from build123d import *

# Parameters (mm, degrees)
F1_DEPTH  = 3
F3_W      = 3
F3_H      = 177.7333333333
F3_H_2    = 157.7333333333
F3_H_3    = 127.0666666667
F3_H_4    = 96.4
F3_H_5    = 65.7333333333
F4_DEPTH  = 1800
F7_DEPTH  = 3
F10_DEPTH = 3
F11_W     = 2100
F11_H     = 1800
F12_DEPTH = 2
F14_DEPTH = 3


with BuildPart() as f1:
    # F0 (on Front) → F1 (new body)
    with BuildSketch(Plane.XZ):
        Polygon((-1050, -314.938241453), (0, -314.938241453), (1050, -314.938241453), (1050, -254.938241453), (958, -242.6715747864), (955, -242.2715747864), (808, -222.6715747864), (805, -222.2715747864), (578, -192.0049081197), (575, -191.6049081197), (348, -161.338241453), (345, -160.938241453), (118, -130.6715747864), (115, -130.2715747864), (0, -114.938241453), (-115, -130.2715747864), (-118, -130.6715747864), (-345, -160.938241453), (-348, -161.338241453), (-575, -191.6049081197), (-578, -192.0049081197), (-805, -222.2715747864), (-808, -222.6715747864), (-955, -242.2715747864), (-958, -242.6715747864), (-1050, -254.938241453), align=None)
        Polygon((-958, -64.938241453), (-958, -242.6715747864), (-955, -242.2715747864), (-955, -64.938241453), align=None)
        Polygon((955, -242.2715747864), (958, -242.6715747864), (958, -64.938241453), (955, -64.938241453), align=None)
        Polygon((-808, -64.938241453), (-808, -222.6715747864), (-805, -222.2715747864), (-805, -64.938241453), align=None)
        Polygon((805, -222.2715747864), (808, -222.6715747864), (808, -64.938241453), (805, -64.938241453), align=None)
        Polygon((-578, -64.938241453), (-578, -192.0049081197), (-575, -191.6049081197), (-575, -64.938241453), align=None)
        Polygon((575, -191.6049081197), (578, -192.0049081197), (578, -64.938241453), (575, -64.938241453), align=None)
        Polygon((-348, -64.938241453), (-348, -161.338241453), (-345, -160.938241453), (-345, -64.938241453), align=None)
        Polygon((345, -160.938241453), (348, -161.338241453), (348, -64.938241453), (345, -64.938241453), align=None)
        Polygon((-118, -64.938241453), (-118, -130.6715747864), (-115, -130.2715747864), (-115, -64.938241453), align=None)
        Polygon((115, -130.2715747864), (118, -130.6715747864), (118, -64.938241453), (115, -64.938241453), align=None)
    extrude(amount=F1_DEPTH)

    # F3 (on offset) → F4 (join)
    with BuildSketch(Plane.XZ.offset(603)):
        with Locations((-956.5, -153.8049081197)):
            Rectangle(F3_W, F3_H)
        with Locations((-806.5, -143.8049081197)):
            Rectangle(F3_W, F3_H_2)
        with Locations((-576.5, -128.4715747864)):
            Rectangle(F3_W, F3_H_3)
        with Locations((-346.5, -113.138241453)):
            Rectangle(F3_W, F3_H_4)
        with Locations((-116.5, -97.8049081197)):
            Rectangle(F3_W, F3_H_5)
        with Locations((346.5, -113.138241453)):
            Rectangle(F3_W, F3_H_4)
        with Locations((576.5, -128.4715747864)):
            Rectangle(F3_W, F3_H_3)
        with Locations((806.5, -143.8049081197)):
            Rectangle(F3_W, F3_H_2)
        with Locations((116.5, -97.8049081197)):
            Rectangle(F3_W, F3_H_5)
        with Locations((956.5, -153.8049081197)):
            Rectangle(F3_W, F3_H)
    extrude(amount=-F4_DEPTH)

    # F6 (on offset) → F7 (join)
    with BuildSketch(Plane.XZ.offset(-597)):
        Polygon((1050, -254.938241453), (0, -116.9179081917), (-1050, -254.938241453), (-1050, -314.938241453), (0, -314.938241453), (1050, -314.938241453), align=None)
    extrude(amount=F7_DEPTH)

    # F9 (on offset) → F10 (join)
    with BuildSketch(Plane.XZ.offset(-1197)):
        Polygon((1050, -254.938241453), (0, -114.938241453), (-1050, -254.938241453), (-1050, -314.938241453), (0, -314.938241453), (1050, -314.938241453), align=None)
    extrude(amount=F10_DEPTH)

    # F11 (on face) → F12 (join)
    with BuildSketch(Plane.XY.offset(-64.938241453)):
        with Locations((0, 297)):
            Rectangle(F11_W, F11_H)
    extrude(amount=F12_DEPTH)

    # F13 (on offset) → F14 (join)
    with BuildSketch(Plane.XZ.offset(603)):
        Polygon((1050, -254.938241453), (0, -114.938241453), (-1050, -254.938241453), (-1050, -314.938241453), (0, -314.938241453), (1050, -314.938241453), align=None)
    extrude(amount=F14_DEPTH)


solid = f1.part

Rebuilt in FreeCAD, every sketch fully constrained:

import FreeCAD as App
import Part
import Sketcher
from FreeCAD import Vector

doc = App.newDocument("Part")
params = doc.addObject("Spreadsheet::Sheet", "Params")
for row, (alias, value) in enumerate([
    ("sketch1_width", "2100 mm"),
    ("sketch1_width2", "3 mm"),
    ("sketch1_height", "60 mm"),
    ("sketch1_height2", "96 mm"),
    ("sketch1_height3", "96.4 mm"),
    ("pad1_length", "3 mm"),
    ("sketch2_width", "3 mm"),
    ("sketch2_height", "96.4 mm"),
    ("pad2_length", "1800 mm"),
    ("sketch3_width", "2100 mm"),
    ("sketch3_height", "60 mm"),
    ("pad3_length", "3 mm"),
    ("sketch4_width", "2100 mm"),
    ("sketch4_height", "60 mm"),
    ("pad4_length", "3 mm"),
    ("sketch5_width", "2100 mm"),
    ("sketch5_height", "1800 mm"),
    ("pad5_length", "2 mm"),
    ("sketch6_width", "2100 mm"),
    ("sketch6_height", "60 mm"),
    ("pad6_length", "3 mm"),
], start=1):
    params.set(f"A{row}", alias)
    params.set(f"B{row}", "=" + value)
    params.setAlias(f"B{row}", alias)

body = doc.addObject("PartDesign::Body", "Body")

# Sketch on XZ plane
sketch1 = body.newObject("Sketcher::SketchObject", "Sketch")
sketch1.AttachmentSupport = (doc.getObject("XZ_Plane"), [""])
sketch1.MapMode = "FlatFace"
sketch1.addGeometry(Part.LineSegment(Vector(-1050, -314.9, 0), Vector(1050, -314.9, 0)), False)
sketch1.addGeometry(Part.LineSegment(Vector(1050, -314.9, 0), Vector(1050, -254.9, 0)), False)
sketch1.addGeometry(Part.LineSegment(Vector(1050, -254.9, 0), Vector(958, -242.7, 0)), False)
sketch1.addGeometry(Part.LineSegment(Vector(958, -242.7, 0), Vector(958, -64.9, 0)), False)
sketch1.addGeometry(Part.LineSegment(Vector(958, -64.9, 0), Vector(955, -64.9, 0)), False)
sketch1.addGeometry(Part.LineSegment(Vector(955, -64.9, 0), Vector(955, -242.3, 0)), False)
sketch1.addGeometry(Part.LineSegment(Vector(955, -242.3, 0), Vector(808, -222.7, 0)), False)
sketch1.addGeometry(Part.LineSegment(Vector(808, -222.7, 0), Vector(808, -64.9, 0)), False)
sketch1.addGeometry(Part.LineSegment(Vector(808, -64.9, 0), Vector(805, -64.9, 0)), False)
sketch1.addGeometry(Part.LineSegment(Vector(805, -64.9, 0), Vector(805, -222.3, 0)), False)
sketch1.addGeometry(Part.LineSegment(Vector(805, -222.3, 0), Vector(578, -192, 0)), False)
sketch1.addGeometry(Part.LineSegment(Vector(578, -192, 0), Vector(578, -64.9, 0)), False)
sketch1.addGeometry(Part.LineSegment(Vector(578, -64.9, 0), Vector(575, -64.9, 0)), False)
sketch1.addGeometry(Part.LineSegment(Vector(575, -64.9, 0), Vector(575, -191.6, 0)), False)
sketch1.addGeometry(Part.LineSegment(Vector(575, -191.6, 0), Vector(348, -161.3, 0)), False)
sketch1.addGeometry(Part.LineSegment(Vector(348, -161.3, 0), Vector(348, -64.9, 0)), False)
sketch1.addGeometry(Part.LineSegment(Vector(348, -64.9, 0), Vector(345, -64.9, 0)), False)
sketch1.addGeometry(Part.LineSegment(Vector(345, -64.9, 0), Vector(345, -160.9, 0)), False)
sketch1.addGeometry(Part.LineSegment(Vector(345, -160.9, 0), Vector(118, -130.7, 0)), False)
sketch1.addGeometry(Part.LineSegment(Vector(118, -130.7, 0), Vector(118, -64.9, 0)), False)
sketch1.addGeometry(Part.LineSegment(Vector(118, -64.9, 0), Vector(115, -64.9, 0)), False)
sketch1.addGeometry(Part.LineSegment(Vector(115, -64.9, 0), Vector(115, -130.3, 0)), False)
sketch1.addGeometry(Part.LineSegment(Vector(115, -130.3, 0), Vector(0, -114.9, 0)), False)
sketch1.addGeometry(Part.LineSegment(Vector(0, -114.9, 0), Vector(-115, -130.3, 0)), False)
sketch1.addGeometry(Part.LineSegment(Vector(-115, -130.3, 0), Vector(-115, -64.9, 0)), False)
sketch1.addGeometry(Part.LineSegment(Vector(-115, -64.9, 0), Vector(-118, -64.9, 0)), False)
sketch1.addGeometry(Part.LineSegment(Vector(-118, -64.9, 0), Vector(-118, -130.7, 0)), False)
sketch1.addGeometry(Part.LineSegment(Vector(-118, -130.7, 0), Vector(-345, -160.9, 0)), False)
sketch1.addGeometry(Part.LineSegment(Vector(-345, -160.9, 0), Vector(-345, -64.9, 0)), False)
sketch1.addGeometry(Part.LineSegment(Vector(-345, -64.9, 0), Vector(-348, -64.9, 0)), False)
sketch1.addGeometry(Part.LineSegment(Vector(-348, -64.9, 0), Vector(-348, -161.3, 0)), False)
sketch1.addGeometry(Part.LineSegment(Vector(-348, -161.3, 0), Vector(-575, -191.6, 0)), False)
sketch1.addGeometry(Part.LineSegment(Vector(-575, -191.6, 0), Vector(-575, -64.9, 0)), False)
sketch1.addGeometry(Part.LineSegment(Vector(-575, -64.9, 0), Vector(-578, -64.9, 0)), False)
sketch1.addGeometry(Part.LineSegment(Vector(-578, -64.9, 0), Vector(-578, -192, 0)), False)
sketch1.addGeometry(Part.LineSegment(Vector(-578, -192, 0), Vector(-805, -222.3, 0)), False)
sketch1.addGeometry(Part.LineSegment(Vector(-805, -222.3, 0), Vector(-805, -64.9, 0)), False)
sketch1.addGeometry(Part.LineSegment(Vector(-805, -64.9, 0), Vector(-808, -64.9, 0)), False)
sketch1.addGeometry(Part.LineSegment(Vector(-808, -64.9, 0), Vector(-808, -222.7, 0)), False)
sketch1.addGeometry(Part.LineSegment(Vector(-808, -222.7, 0), Vector(-955, -242.3, 0)), False)
sketch1.addGeometry(Part.LineSegment(Vector(-955, -242.3, 0), Vector(-955, -64.9, 0)), False)
sketch1.addGeometry(Part.LineSegment(Vector(-955, -64.9, 0), Vector(-958, -64.9, 0)), False)
sketch1.addGeometry(Part.LineSegment(Vector(-958, -64.9, 0), Vector(-958, -242.7, 0)), False)
sketch1.addGeometry(Part.LineSegment(Vector(-958, -242.7, 0), Vector(-1050, -254.9, 0)), False)
sketch1.addGeometry(Part.LineSegment(Vector(-1050, -254.9, 0), Vector(-1050, -314.9, 0)), False)
sketch1.addConstraint(Sketcher.Constraint("Coincident", 0, 2, 1, 1))
sketch1.addConstraint(Sketcher.Constraint("Coincident", 1, 2, 2, 1))
sketch1.addConstraint(Sketcher.Constraint("Coincident", 2, 2, 3, 1))
sketch1.addConstraint(Sketcher.Constraint("Coincident", 3, 2, 4, 1))
sketch1.addConstraint(Sketcher.Constraint("Coincident", 4, 2, 5, 1))
sketch1.addConstraint(Sketcher.Constraint("Coincident", 5, 2, 6, 1))
sketch1.addConstraint(Sketcher.Constraint("Coincident", 6, 2, 7, 1))
sketch1.addConstraint(Sketcher.Constraint("Coincident", 7, 2, 8, 1))
sketch1.addConstraint(Sketcher.Constraint("Coincident", 8, 2, 9, 1))
sketch1.addConstraint(Sketcher.Constraint("Coincident", 9, 2, 10, 1))
sketch1.addConstraint(Sketcher.Constraint("Coincident", 10, 2, 11, 1))
sketch1.addConstraint(Sketcher.Constraint("Coincident", 11, 2, 12, 1))
sketch1.addConstraint(Sketcher.Constraint("Coincident", 12, 2, 13, 1))
sketch1.addConstraint(Sketcher.Constraint("Coincident", 13, 2, 14, 1))
sketch1.addConstraint(Sketcher.Constraint("Coincident", 14, 2, 15, 1))
sketch1.addConstraint(Sketcher.Constraint("Coincident", 15, 2, 16, 1))
sketch1.addConstraint(Sketcher.Constraint("Coincident", 16, 2, 17, 1))
sketch1.addConstraint(Sketcher.Constraint("Coincident", 17, 2, 18, 1))
sketch1.addConstraint(Sketcher.Constraint("Coincident", 18, 2, 19, 1))
sketch1.addConstraint(Sketcher.Constraint("Coincident", 19, 2, 20, 1))
sketch1.addConstraint(Sketcher.Constraint("Coincident", 20, 2, 21, 1))
sketch1.addConstraint(Sketcher.Constraint("Coincident", 21, 2, 22, 1))
sketch1.addConstraint(Sketcher.Constraint("Coincident", 22, 2, 23, 1))
sketch1.addConstraint(Sketcher.Constraint("Coincident", 23, 2, 24, 1))
sketch1.addConstraint(Sketcher.Constraint("Coincident", 24, 2, 25, 1))
sketch1.addConstraint(Sketcher.Constraint("Coincident", 25, 2, 26, 1))
sketch1.addConstraint(Sketcher.Constraint("Coincident", 26, 2, 27, 1))
sketch1.addConstraint(Sketcher.Constraint("Coincident", 27, 2, 28, 1))
sketch1.addConstraint(Sketcher.Constraint("Coincident", 28, 2, 29, 1))
sketch1.addConstraint(Sketcher.Constraint("Coincident", 29, 2, 30, 1))
sketch1.addConstraint(Sketcher.Constraint("Coincident", 30, 2, 31, 1))
sketch1.addConstraint(Sketcher.Constraint("Coincident", 31, 2, 32, 1))
sketch1.addConstraint(Sketcher.Constraint("Coincident", 32, 2, 33, 1))
sketch1.addConstraint(Sketcher.Constraint("Coincident", 33, 2, 34, 1))
sketch1.addConstraint(Sketcher.Constraint("Coincident", 34, 2, 35, 1))
sketch1.addConstraint(Sketcher.Constraint("Coincident", 35, 2, 36, 1))
sketch1.addConstraint(Sketcher.Constraint("Coincident", 36, 2, 37, 1))
sketch1.addConstraint(Sketcher.Constraint("Coincident", 37, 2, 38, 1))
sketch1.addConstraint(Sketcher.Constraint("Coincident", 38, 2, 39, 1))
sketch1.addConstraint(Sketcher.Constraint("Coincident", 39, 2, 40, 1))
sketch1.addConstraint(Sketcher.Constraint("Coincident", 40, 2, 41, 1))
sketch1.addConstraint(Sketcher.Constraint("Coincident", 41, 2, 42, 1))
sketch1.addConstraint(Sketcher.Constraint("Coincident", 42, 2, 43, 1))
sketch1.addConstraint(Sketcher.Constraint("Coincident", 43, 2, 44, 1))
sketch1.addConstraint(Sketcher.Constraint("Coincident", 44, 2, 0, 1))
sketch1.addConstraint(Sketcher.Constraint("Horizontal", 0))
sketch1.addConstraint(Sketcher.Constraint("Vertical", 1))
sketch1.addConstraint(Sketcher.Constraint("Vertical", 3))
sketch1.addConstraint(Sketcher.Constraint("Horizontal", 4))
sketch1.addConstraint(Sketcher.Constraint("Vertical", 5))
sketch1.addConstraint(Sketcher.Constraint("Vertical", 7))
sketch1.addConstraint(Sketcher.Constraint("Horizontal", 8))
sketch1.addConstraint(Sketcher.Constraint("Vertical", 9))
sketch1.addConstraint(Sketcher.Constraint("Vertical", 11))
sketch1.addConstraint(Sketcher.Constraint("Horizontal", 12))
sketch1.addConstraint(Sketcher.Constraint("Vertical", 13))
sketch1.addConstraint(Sketcher.Constraint("Vertical", 15))
sketch1.addConstraint(Sketcher.Constraint("Horizontal", 16))
sketch1.addConstraint(Sketcher.Constraint("Vertical", 17))
sketch1.addConstraint(Sketcher.Constraint("Vertical", 19))
sketch1.addConstraint(Sketcher.Constraint("Horizontal", 20))
sketch1.addConstraint(Sketcher.Constraint("Vertical", 21))
sketch1.addConstraint(Sketcher.Constraint("Vertical", 24))
sketch1.addConstraint(Sketcher.Constraint("Horizontal", 25))
sketch1.addConstraint(Sketcher.Constraint("Vertical", 26))
sketch1.addConstraint(Sketcher.Constraint("Vertical", 28))
sketch1.addConstraint(Sketcher.Constraint("Horizontal", 29))
sketch1.addConstraint(Sketcher.Constraint("Vertical", 30))
sketch1.addConstraint(Sketcher.Constraint("Vertical", 32))
sketch1.addConstraint(Sketcher.Constraint("Horizontal", 33))
sketch1.addConstraint(Sketcher.Constraint("Vertical", 34))
sketch1.addConstraint(Sketcher.Constraint("Vertical", 36))
sketch1.addConstraint(Sketcher.Constraint("Horizontal", 37))
sketch1.addConstraint(Sketcher.Constraint("Vertical", 38))
sketch1.addConstraint(Sketcher.Constraint("Vertical", 40))
sketch1.addConstraint(Sketcher.Constraint("Horizontal", 41))
sketch1.addConstraint(Sketcher.Constraint("Vertical", 42))
sketch1.addConstraint(Sketcher.Constraint("Vertical", 44))
sketch1.addConstraint(Sketcher.Constraint("Symmetric", 21, 2, 23, 2, -2))
sketch1.addConstraint(Sketcher.Constraint("Symmetric", 19, 2, 25, 2, -2))
sketch1.addConstraint(Sketcher.Constraint("Symmetric", 17, 2, 27, 2, -2))
sketch1.addConstraint(Sketcher.Constraint("Symmetric", 15, 2, 29, 2, -2))
sketch1.addConstraint(Sketcher.Constraint("Symmetric", 13, 2, 31, 2, -2))
sketch1.addConstraint(Sketcher.Constraint("Symmetric", 11, 2, 33, 2, -2))
sketch1.addConstraint(Sketcher.Constraint("Symmetric", 9, 2, 35, 2, -2))
sketch1.addConstraint(Sketcher.Constraint("Symmetric", 7, 2, 37, 2, -2))
sketch1.addConstraint(Sketcher.Constraint("Symmetric", 5, 2, 39, 2, -2))
sketch1.addConstraint(Sketcher.Constraint("Symmetric", 3, 2, 41, 2, -2))
sketch1.addConstraint(Sketcher.Constraint("Symmetric", 1, 2, 43, 2, -2))
sketch1.addConstraint(Sketcher.Constraint("PointOnObject", 22, 2, -2))
sketch1.addConstraint(Sketcher.Constraint("Parallel", 2, 6))
sketch1.addConstraint(Sketcher.Constraint("Parallel", 6, 10))
sketch1.addConstraint(Sketcher.Constraint("Parallel", 10, 14))
sketch1.addConstraint(Sketcher.Constraint("Parallel", 14, 18))
sketch1.addConstraint(Sketcher.Constraint("Parallel", 18, 22))
sketch1.addConstraint(Sketcher.Constraint("Parallel", 23, 27))
sketch1.addConstraint(Sketcher.Constraint("Parallel", 27, 31))
sketch1.addConstraint(Sketcher.Constraint("Parallel", 31, 35))
sketch1.addConstraint(Sketcher.Constraint("Parallel", 35, 39))
sketch1.addConstraint(Sketcher.Constraint("Parallel", 39, 43))
sketch1.addConstraint(Sketcher.Constraint("Horizontal", 4, 2, 7, 2))
sketch1.addConstraint(Sketcher.Constraint("Horizontal", 8, 2, 11, 2))
sketch1.addConstraint(Sketcher.Constraint("Horizontal", 12, 2, 15, 2))
sketch1.addConstraint(Sketcher.Constraint("Horizontal", 16, 2, 19, 2))
sketch1.addConstraint(Sketcher.Constraint("Equal", 4, 8))
sketch1.addConstraint(Sketcher.Constraint("Equal", 8, 12))
sketch1.addConstraint(Sketcher.Constraint("Equal", 12, 16))
sketch1.addConstraint(Sketcher.Constraint("Equal", 16, 20))
sketch1.addConstraint(Sketcher.Constraint("Equal", 10, 14))
sketch1.addConstraint(Sketcher.Constraint("Equal", 14, 18))
sketch1.addConstraint(Sketcher.Constraint("DistanceX", 0, 1, 0, 2, 2100.0))
sketch1.addConstraint(Sketcher.Constraint("DistanceX", 4, 2, 4, 1, 3.0))
sketch1.addConstraint(Sketcher.Constraint("DistanceY", 1, 1, 1, 2, 60.0))
sketch1.addConstraint(Sketcher.Constraint("DistanceY", 17, 2, 17, 1, 96.0))
sketch1.addConstraint(Sketcher.Constraint("DistanceY", 15, 1, 15, 2, 96.4))
sketch1.addConstraint(Sketcher.Constraint("DistanceX", -1, 1, 2, 2, 958.0))
sketch1.addConstraint(Sketcher.Constraint("DistanceX", -1, 1, 6, 2, 808.0))
sketch1.addConstraint(Sketcher.Constraint("DistanceX", -1, 1, 10, 2, 578.0))
sketch1.addConstraint(Sketcher.Constraint("DistanceY", 1, 2, 3, 2, 190.0))
sketch1.addConstraint(Sketcher.Constraint("DistanceY", 2, 2, 6, 2, 20.0))
sketch1.addConstraint(Sketcher.Constraint("DistanceY", 5, 2, 9, 2, 20.0))
sketch1.addConstraint(Sketcher.Constraint("DistanceY", 22, 2, 20, 2, 50.0))
sketch1.addConstraint(Sketcher.Constraint("DistanceY", 2, 2, 5, 2, 0.4))
sketch1.addConstraint(Sketcher.Constraint("DistanceY", 0, 2, -1, 1, 314.938241))
sketch1.setExpression("Constraints[110]", "Params.sketch1_width")
sketch1.setExpression("Constraints[111]", "Params.sketch1_width2")
sketch1.setExpression("Constraints[112]", "Params.sketch1_height")
sketch1.setExpression("Constraints[113]", "Params.sketch1_height2")
sketch1.setExpression("Constraints[114]", "Params.sketch1_height3")
pad1 = body.newObject("PartDesign::Pad", "Pad")
pad1.Profile = sketch1
pad1.setExpression("Length", "Params.pad1_length")

# Sketch on XZ plane
sketch2 = body.newObject("Sketcher::SketchObject", "Sketch001")
sketch2.AttachmentSupport = (doc.getObject("XZ_Plane"), [""])
sketch2.MapMode = "FlatFace"
sketch2.AttachmentOffset = App.Placement(Vector(0, 0, 603), App.Rotation())
sketch2.addGeometry(Part.LineSegment(Vector(-958, -64.9, 0), Vector(-958, -242.7, 0)), False)
sketch2.addGeometry(Part.LineSegment(Vector(-958, -242.7, 0), Vector(-955, -242.7, 0)), False)
sketch2.addGeometry(Part.LineSegment(Vector(-955, -242.7, 0), Vector(-955, -64.9, 0)), False)
sketch2.addGeometry(Part.LineSegment(Vector(-955, -64.9, 0), Vector(-958, -64.9, 0)), False)
sketch2.addGeometry(Part.LineSegment(Vector(-808, -64.9, 0), Vector(-808, -222.7, 0)), False)
sketch2.addGeometry(Part.LineSegment(Vector(-808, -222.7, 0), Vector(-805, -222.7, 0)), False)
sketch2.addGeometry(Part.LineSegment(Vector(-805, -222.7, 0), Vector(-805, -64.9, 0)), False)
sketch2.addGeometry(Part.LineSegment(Vector(-805, -64.9, 0), Vector(-808, -64.9, 0)), False)
sketch2.addGeometry(Part.LineSegment(Vector(-578, -64.9, 0), Vector(-578, -192, 0)), False)
sketch2.addGeometry(Part.LineSegment(Vector(-578, -192, 0), Vector(-575, -192, 0)), False)
sketch2.addGeometry(Part.LineSegment(Vector(-575, -192, 0), Vector(-575, -64.9, 0)), False)
sketch2.addGeometry(Part.LineSegment(Vector(-575, -64.9, 0), Vector(-578, -64.9, 0)), False)
sketch2.addGeometry(Part.LineSegment(Vector(-348, -64.9, 0), Vector(-348, -161.3, 0)), False)
sketch2.addGeometry(Part.LineSegment(Vector(-348, -161.3, 0), Vector(-345, -161.3, 0)), False)
sketch2.addGeometry(Part.LineSegment(Vector(-345, -161.3, 0), Vector(-345, -64.9, 0)), False)
sketch2.addGeometry(Part.LineSegment(Vector(-345, -64.9, 0), Vector(-348, -64.9, 0)), False)
sketch2.addGeometry(Part.LineSegment(Vector(-118, -64.9, 0), Vector(-118, -130.7, 0)), False)
sketch2.addGeometry(Part.LineSegment(Vector(-118, -130.7, 0), Vector(-115, -130.7, 0)), False)
sketch2.addGeometry(Part.LineSegment(Vector(-115, -130.7, 0), Vector(-115, -64.9, 0)), False)
sketch2.addGeometry(Part.LineSegment(Vector(-115, -64.9, 0), Vector(-118, -64.9, 0)), False)
sketch2.addGeometry(Part.LineSegment(Vector(345, -64.9, 0), Vector(345, -161.3, 0)), False)
sketch2.addGeometry(Part.LineSegment(Vector(345, -161.3, 0), Vector(348, -161.3, 0)), False)
sketch2.addGeometry(Part.LineSegment(Vector(348, -161.3, 0), Vector(348, -64.9, 0)), False)
sketch2.addGeometry(Part.LineSegment(Vector(348, -64.9, 0), Vector(345, -64.9, 0)), False)
sketch2.addGeometry(Part.LineSegment(Vector(575, -64.9, 0), Vector(575, -192, 0)), False)
sketch2.addGeometry(Part.LineSegment(Vector(575, -192, 0), Vector(578, -192, 0)), False)
sketch2.addGeometry(Part.LineSegment(Vector(578, -192, 0), Vector(578, -64.9, 0)), False)
sketch2.addGeometry(Part.LineSegment(Vector(578, -64.9, 0), Vector(575, -64.9, 0)), False)
sketch2.addGeometry(Part.LineSegment(Vector(805, -64.9, 0), Vector(805, -222.7, 0)), False)
sketch2.addGeometry(Part.LineSegment(Vector(805, -222.7, 0), Vector(808, -222.7, 0)), False)
sketch2.addGeometry(Part.LineSegment(Vector(808, -222.7, 0), Vector(808, -64.9, 0)), False)
sketch2.addGeometry(Part.LineSegment(Vector(808, -64.9, 0), Vector(805, -64.9, 0)), False)
sketch2.addGeometry(Part.LineSegment(Vector(115, -64.9, 0), Vector(115, -130.7, 0)), False)
sketch2.addGeometry(Part.LineSegment(Vector(115, -130.7, 0), Vector(118, -130.7, 0)), False)
sketch2.addGeometry(Part.LineSegment(Vector(118, -130.7, 0), Vector(118, -64.9, 0)), False)
sketch2.addGeometry(Part.LineSegment(Vector(118, -64.9, 0), Vector(115, -64.9, 0)), False)
sketch2.addGeometry(Part.LineSegment(Vector(955, -64.9, 0), Vector(955, -242.7, 0)), False)
sketch2.addGeometry(Part.LineSegment(Vector(955, -242.7, 0), Vector(958, -242.7, 0)), False)
sketch2.addGeometry(Part.LineSegment(Vector(958, -242.7, 0), Vector(958, -64.9, 0)), False)
sketch2.addGeometry(Part.LineSegment(Vector(958, -64.9, 0), Vector(955, -64.9, 0)), False)
sketch2.addConstraint(Sketcher.Constraint("Coincident", 0, 2, 1, 1))
sketch2.addConstraint(Sketcher.Constraint("Coincident", 1, 2, 2, 1))
sketch2.addConstraint(Sketcher.Constraint("Coincident", 2, 2, 3, 1))
sketch2.addConstraint(Sketcher.Constraint("Coincident", 3, 2, 0, 1))
sketch2.addConstraint(Sketcher.Constraint("Coincident", 4, 2, 5, 1))
sketch2.addConstraint(Sketcher.Constraint("Coincident", 5, 2, 6, 1))
sketch2.addConstraint(Sketcher.Constraint("Coincident", 6, 2, 7, 1))
sketch2.addConstraint(Sketcher.Constraint("Coincident", 7, 2, 4, 1))
sketch2.addConstraint(Sketcher.Constraint("Coincident", 8, 2, 9, 1))
sketch2.addConstraint(Sketcher.Constraint("Coincident", 9, 2, 10, 1))
sketch2.addConstraint(Sketcher.Constraint("Coincident", 10, 2, 11, 1))
sketch2.addConstraint(Sketcher.Constraint("Coincident", 11, 2, 8, 1))
sketch2.addConstraint(Sketcher.Constraint("Coincident", 12, 2, 13, 1))
sketch2.addConstraint(Sketcher.Constraint("Coincident", 13, 2, 14, 1))
sketch2.addConstraint(Sketcher.Constraint("Coincident", 14, 2, 15, 1))
sketch2.addConstraint(Sketcher.Constraint("Coincident", 15, 2, 12, 1))
sketch2.addConstraint(Sketcher.Constraint("Coincident", 16, 2, 17, 1))
sketch2.addConstraint(Sketcher.Constraint("Coincident", 17, 2, 18, 1))
sketch2.addConstraint(Sketcher.Constraint("Coincident", 18, 2, 19, 1))
sketch2.addConstraint(Sketcher.Constraint("Coincident", 19, 2, 16, 1))
sketch2.addConstraint(Sketcher.Constraint("Coincident", 20, 2, 21, 1))
sketch2.addConstraint(Sketcher.Constraint("Coincident", 21, 2, 22, 1))
sketch2.addConstraint(Sketcher.Constraint("Coincident", 22, 2, 23, 1))
sketch2.addConstraint(Sketcher.Constraint("Coincident", 23, 2, 20, 1))
sketch2.addConstraint(Sketcher.Constraint("Coincident", 24, 2, 25, 1))
sketch2.addConstraint(Sketcher.Constraint("Coincident", 25, 2, 26, 1))
sketch2.addConstraint(Sketcher.Constraint("Coincident", 26, 2, 27, 1))
sketch2.addConstraint(Sketcher.Constraint("Coincident", 27, 2, 24, 1))
sketch2.addConstraint(Sketcher.Constraint("Coincident", 28, 2, 29, 1))
sketch2.addConstraint(Sketcher.Constraint("Coincident", 29, 2, 30, 1))
sketch2.addConstraint(Sketcher.Constraint("Coincident", 30, 2, 31, 1))
sketch2.addConstraint(Sketcher.Constraint("Coincident", 31, 2, 28, 1))
sketch2.addConstraint(Sketcher.Constraint("Coincident", 32, 2, 33, 1))
sketch2.addConstraint(Sketcher.Constraint("Coincident", 33, 2, 34, 1))
sketch2.addConstraint(Sketcher.Constraint("Coincident", 34, 2, 35, 1))
sketch2.addConstraint(Sketcher.Constraint("Coincident", 35, 2, 32, 1))
sketch2.addConstraint(Sketcher.Constraint("Coincident", 36, 2, 37, 1))
sketch2.addConstraint(Sketcher.Constraint("Coincident", 37, 2, 38, 1))
sketch2.addConstraint(Sketcher.Constraint("Coincident", 38, 2, 39, 1))
sketch2.addConstraint(Sketcher.Constraint("Coincident", 39, 2, 36, 1))
sketch2.addConstraint(Sketcher.Constraint("Vertical", 0))
sketch2.addConstraint(Sketcher.Constraint("Horizontal", 1))
sketch2.addConstraint(Sketcher.Constraint("Vertical", 2))
sketch2.addConstraint(Sketcher.Constraint("Horizontal", 3))
sketch2.addConstraint(Sketcher.Constraint("Vertical", 4))
sketch2.addConstraint(Sketcher.Constraint("Horizontal", 5))
sketch2.addConstraint(Sketcher.Constraint("Vertical", 6))
sketch2.addConstraint(Sketcher.Constraint("Horizontal", 7))
sketch2.addConstraint(Sketcher.Constraint("Vertical", 8))
sketch2.addConstraint(Sketcher.Constraint("Horizontal", 9))
sketch2.addConstraint(Sketcher.Constraint("Vertical", 10))
sketch2.addConstraint(Sketcher.Constraint("Horizontal", 11))
sketch2.addConstraint(Sketcher.Constraint("Vertical", 12))
sketch2.addConstraint(Sketcher.Constraint("Horizontal", 13))
sketch2.addConstraint(Sketcher.Constraint("Vertical", 14))
sketch2.addConstraint(Sketcher.Constraint("Horizontal", 15))
sketch2.addConstraint(Sketcher.Constraint("Vertical", 16))
sketch2.addConstraint(Sketcher.Constraint("Horizontal", 17))
sketch2.addConstraint(Sketcher.Constraint("Vertical", 18))
sketch2.addConstraint(Sketcher.Constraint("Horizontal", 19))
sketch2.addConstraint(Sketcher.Constraint("Vertical", 20))
sketch2.addConstraint(Sketcher.Constraint("Horizontal", 21))
sketch2.addConstraint(Sketcher.Constraint("Vertical", 22))
sketch2.addConstraint(Sketcher.Constraint("Horizontal", 23))
sketch2.addConstraint(Sketcher.Constraint("Vertical", 24))
sketch2.addConstraint(Sketcher.Constraint("Horizontal", 25))
sketch2.addConstraint(Sketcher.Constraint("Vertical", 26))
sketch2.addConstraint(Sketcher.Constraint("Horizontal", 27))
sketch2.addConstraint(Sketcher.Constraint("Vertical", 28))
sketch2.addConstraint(Sketcher.Constraint("Horizontal", 29))
sketch2.addConstraint(Sketcher.Constraint("Vertical", 30))
sketch2.addConstraint(Sketcher.Constraint("Horizontal", 31))
sketch2.addConstraint(Sketcher.Constraint("Vertical", 32))
sketch2.addConstraint(Sketcher.Constraint("Horizontal", 33))
sketch2.addConstraint(Sketcher.Constraint("Vertical", 34))
sketch2.addConstraint(Sketcher.Constraint("Horizontal", 35))
sketch2.addConstraint(Sketcher.Constraint("Vertical", 36))
sketch2.addConstraint(Sketcher.Constraint("Horizontal", 37))
sketch2.addConstraint(Sketcher.Constraint("Vertical", 38))
sketch2.addConstraint(Sketcher.Constraint("Horizontal", 39))
sketch2.addConstraint(Sketcher.Constraint("Symmetric", 13, 2, 20, 2, -2))
sketch2.addConstraint(Sketcher.Constraint("Symmetric", 15, 2, 22, 2, -2))
sketch2.addConstraint(Sketcher.Constraint("Symmetric", 9, 2, 24, 2, -2))
sketch2.addConstraint(Sketcher.Constraint("Symmetric", 11, 2, 26, 2, -2))
sketch2.addConstraint(Sketcher.Constraint("Symmetric", 5, 2, 28, 2, -2))
sketch2.addConstraint(Sketcher.Constraint("Symmetric", 7, 2, 30, 2, -2))
sketch2.addConstraint(Sketcher.Constraint("Symmetric", 17, 2, 32, 2, -2))
sketch2.addConstraint(Sketcher.Constraint("Symmetric", 19, 2, 34, 2, -2))
sketch2.addConstraint(Sketcher.Constraint("Symmetric", 1, 2, 36, 2, -2))
sketch2.addConstraint(Sketcher.Constraint("Symmetric", 3, 2, 38, 2, -2))
sketch2.addConstraint(Sketcher.Constraint("Horizontal", 3, 2, 6, 2))
sketch2.addConstraint(Sketcher.Constraint("Horizontal", 7, 2, 10, 2))
sketch2.addConstraint(Sketcher.Constraint("Horizontal", 11, 2, 14, 2))
sketch2.addConstraint(Sketcher.Constraint("Horizontal", 15, 2, 18, 2))
sketch2.addConstraint(Sketcher.Constraint("Equal", 3, 5))
sketch2.addConstraint(Sketcher.Constraint("Equal", 7, 9))
sketch2.addConstraint(Sketcher.Constraint("Equal", 11, 13))
sketch2.addConstraint(Sketcher.Constraint("Equal", 15, 17))
sketch2.addConstraint(Sketcher.Constraint("DistanceX", 1, 1, 1, 2, 3.0))
sketch2.addConstraint(Sketcher.Constraint("DistanceY", 12, 2, 12, 1, 96.4))
sketch2.addConstraint(Sketcher.Constraint("DistanceX", 0, 2, -1, 1, 958.0))
sketch2.addConstraint(Sketcher.Constraint("DistanceX", 4, 2, -1, 1, 808.0))
sketch2.addConstraint(Sketcher.Constraint("DistanceX", 8, 2, -1, 1, 578.0))
sketch2.addConstraint(Sketcher.Constraint("DistanceX", 12, 2, -1, 1, 348.0))
sketch2.addConstraint(Sketcher.Constraint("DistanceX", 16, 2, -1, 1, 118.0))
sketch2.addConstraint(Sketcher.Constraint("DistanceY", 1, 2, 4, 2, 20.0))
sketch2.addConstraint(Sketcher.Constraint("DistanceY", 0, 2, 0, 1, 177.733333))
sketch2.addConstraint(Sketcher.Constraint("DistanceY", 8, 2, 8, 1, 127.066667))
sketch2.addConstraint(Sketcher.Constraint("DistanceY", 16, 2, 16, 1, 65.733333))
sketch2.addConstraint(Sketcher.Constraint("DistanceY", 2, 2, -1, 1, 64.938241))
sketch2.setExpression("Constraints[98]", "Params.sketch2_width")
sketch2.setExpression("Constraints[99]", "Params.sketch2_height")
pad2 = body.newObject("PartDesign::Pad", "Pad001")
pad2.Profile = sketch2
pad2.setExpression("Length", "Params.pad2_length")
pad2.Reversed = True

# Sketch on XZ plane
sketch3 = body.newObject("Sketcher::SketchObject", "Sketch002")
sketch3.AttachmentSupport = (doc.getObject("XZ_Plane"), [""])
sketch3.MapMode = "FlatFace"
sketch3.AttachmentOffset = App.Placement(Vector(0, 0, -597), App.Rotation())
sketch3.addGeometry(Part.LineSegment(Vector(1050, -255, 0), Vector(0, -117, 0)), False)
sketch3.addGeometry(Part.LineSegment(Vector(0, -117, 0), Vector(-1050, -255, 0)), False)
sketch3.addGeometry(Part.LineSegment(Vector(-1050, -255, 0), Vector(-1050, -315, 0)), False)
sketch3.addGeometry(Part.LineSegment(Vector(-1050, -315, 0), Vector(1050, -315, 0)), False)
sketch3.addGeometry(Part.LineSegment(Vector(1050, -315, 0), Vector(1050, -255, 0)), False)
sketch3.addConstraint(Sketcher.Constraint("Coincident", 0, 2, 1, 1))
sketch3.addConstraint(Sketcher.Constraint("Coincident", 1, 2, 2, 1))
sketch3.addConstraint(Sketcher.Constraint("Coincident", 2, 2, 3, 1))
sketch3.addConstraint(Sketcher.Constraint("Coincident", 3, 2, 4, 1))
sketch3.addConstraint(Sketcher.Constraint("Coincident", 4, 2, 0, 1))
sketch3.addConstraint(Sketcher.Constraint("Vertical", 2))
sketch3.addConstraint(Sketcher.Constraint("Horizontal", 3))
sketch3.addConstraint(Sketcher.Constraint("Vertical", 4))
sketch3.addConstraint(Sketcher.Constraint("Symmetric", 1, 2, 4, 2, -2))
sketch3.addConstraint(Sketcher.Constraint("PointOnObject", 0, 2, -2))
sketch3.addConstraint(Sketcher.Constraint("DistanceX", 3, 1, 3, 2, 2100.0))
sketch3.addConstraint(Sketcher.Constraint("DistanceY", 2, 2, 2, 1, 60.0))
sketch3.addConstraint(Sketcher.Constraint("DistanceY", 0, 2, -1, 1, 116.917908))
sketch3.addConstraint(Sketcher.Constraint("DistanceY", 1, 2, -1, 1, 254.938241))
sketch3.setExpression("Constraints[10]", "Params.sketch3_width")
sketch3.setExpression("Constraints[11]", "Params.sketch3_height")
pad3 = body.newObject("PartDesign::Pad", "Pad002")
pad3.Profile = sketch3
pad3.setExpression("Length", "Params.pad3_length")

# Sketch on XZ plane
sketch4 = body.newObject("Sketcher::SketchObject", "Sketch003")
sketch4.AttachmentSupport = (doc.getObject("XZ_Plane"), [""])
sketch4.MapMode = "FlatFace"
sketch4.AttachmentOffset = App.Placement(Vector(0, 0, -1197), App.Rotation())
sketch4.addGeometry(Part.LineSegment(Vector(1050, -255, 0), Vector(0, -115, 0)), False)
sketch4.addGeometry(Part.LineSegment(Vector(0, -115, 0), Vector(-1050, -255, 0)), False)
sketch4.addGeometry(Part.LineSegment(Vector(-1050, -255, 0), Vector(-1050, -315, 0)), False)
sketch4.addGeometry(Part.LineSegment(Vector(-1050, -315, 0), Vector(1050, -315, 0)), False)
sketch4.addGeometry(Part.LineSegment(Vector(1050, -315, 0), Vector(1050, -255, 0)), False)
sketch4.addConstraint(Sketcher.Constraint("Coincident", 0, 2, 1, 1))
sketch4.addConstraint(Sketcher.Constraint("Coincident", 1, 2, 2, 1))
sketch4.addConstraint(Sketcher.Constraint("Coincident", 2, 2, 3, 1))
sketch4.addConstraint(Sketcher.Constraint("Coincident", 3, 2, 4, 1))
sketch4.addConstraint(Sketcher.Constraint("Coincident", 4, 2, 0, 1))
sketch4.addConstraint(Sketcher.Constraint("Vertical", 2))
sketch4.addConstraint(Sketcher.Constraint("Horizontal", 3))
sketch4.addConstraint(Sketcher.Constraint("Vertical", 4))
sketch4.addConstraint(Sketcher.Constraint("Symmetric", 1, 2, 4, 2, -2))
sketch4.addConstraint(Sketcher.Constraint("PointOnObject", 0, 2, -2))
sketch4.addConstraint(Sketcher.Constraint("DistanceX", 3, 1, 3, 2, 2100.0))
sketch4.addConstraint(Sketcher.Constraint("DistanceY", 2, 2, 2, 1, 60.0))
sketch4.addConstraint(Sketcher.Constraint("DistanceY", 1, 2, 0, 2, 140.0))
sketch4.addConstraint(Sketcher.Constraint("DistanceY", 0, 2, -1, 1, 114.938241))
sketch4.setExpression("Constraints[10]", "Params.sketch4_width")
sketch4.setExpression("Constraints[11]", "Params.sketch4_height")
pad4 = body.newObject("PartDesign::Pad", "Pad003")
pad4.Profile = sketch4
pad4.setExpression("Length", "Params.pad4_length")

# Sketch on XY plane
sketch5 = body.newObject("Sketcher::SketchObject", "Sketch004")
sketch5.AttachmentSupport = (doc.getObject("XY_Plane"), [""])
sketch5.MapMode = "FlatFace"
sketch5.AttachmentOffset = App.Placement(Vector(0, 0, -64.938241), App.Rotation())
sketch5.addGeometry(Part.LineSegment(Vector(-1050, 1197, 0), Vector(-1050, -603, 0)), False)
sketch5.addGeometry(Part.LineSegment(Vector(-1050, -603, 0), Vector(1050, -603, 0)), False)
sketch5.addGeometry(Part.LineSegment(Vector(1050, -603, 0), Vector(1050, 1197, 0)), False)
sketch5.addGeometry(Part.LineSegment(Vector(1050, 1197, 0), Vector(-1050, 1197, 0)), False)
sketch5.addConstraint(Sketcher.Constraint("Coincident", 0, 2, 1, 1))
sketch5.addConstraint(Sketcher.Constraint("Coincident", 1, 2, 2, 1))
sketch5.addConstraint(Sketcher.Constraint("Coincident", 2, 2, 3, 1))
sketch5.addConstraint(Sketcher.Constraint("Coincident", 3, 2, 0, 1))
sketch5.addConstraint(Sketcher.Constraint("Vertical", 0))
sketch5.addConstraint(Sketcher.Constraint("Horizontal", 1))
sketch5.addConstraint(Sketcher.Constraint("Vertical", 2))
sketch5.addConstraint(Sketcher.Constraint("Horizontal", 3))
sketch5.addConstraint(Sketcher.Constraint("DistanceX", 1, 1, 1, 2, 2100.0))
sketch5.addConstraint(Sketcher.Constraint("DistanceY", 0, 2, 0, 1, 1800.0))
sketch5.addConstraint(Sketcher.Constraint("DistanceX", 0, 2, -1, 1, 1050.0))
sketch5.addConstraint(Sketcher.Constraint("DistanceY", 0, 2, -1, 1, 603.0))
sketch5.setExpression("Constraints[8]", "Params.sketch5_width")
sketch5.setExpression("Constraints[9]", "Params.sketch5_height")
pad5 = body.newObject("PartDesign::Pad", "Pad004")
pad5.Profile = sketch5
pad5.setExpression("Length", "Params.pad5_length")

# Sketch on XZ plane
sketch6 = body.newObject("Sketcher::SketchObject", "Sketch005")
sketch6.AttachmentSupport = (doc.getObject("XZ_Plane"), [""])
sketch6.MapMode = "FlatFace"
sketch6.AttachmentOffset = App.Placement(Vector(0, 0, 603), App.Rotation())
sketch6.addGeometry(Part.LineSegment(Vector(1050, -255, 0), Vector(0, -115, 0)), False)
sketch6.addGeometry(Part.LineSegment(Vector(0, -115, 0), Vector(-1050, -255, 0)), False)
sketch6.addGeometry(Part.LineSegment(Vector(-1050, -255, 0), Vector(-1050, -315, 0)), False)
sketch6.addGeometry(Part.LineSegment(Vector(-1050, -315, 0), Vector(1050, -315, 0)), False)
sketch6.addGeometry(Part.LineSegment(Vector(1050, -315, 0), Vector(1050, -255, 0)), False)
sketch6.addConstraint(Sketcher.Constraint("Coincident", 0, 2, 1, 1))
sketch6.addConstraint(Sketcher.Constraint("Coincident", 1, 2, 2, 1))
sketch6.addConstraint(Sketcher.Constraint("Coincident", 2, 2, 3, 1))
sketch6.addConstraint(Sketcher.Constraint("Coincident", 3, 2, 4, 1))
sketch6.addConstraint(Sketcher.Constraint("Coincident", 4, 2, 0, 1))
sketch6.addConstraint(Sketcher.Constraint("Vertical", 2))
sketch6.addConstraint(Sketcher.Constraint("Horizontal", 3))
sketch6.addConstraint(Sketcher.Constraint("Vertical", 4))
sketch6.addConstraint(Sketcher.Constraint("Symmetric", 1, 2, 4, 2, -2))
sketch6.addConstraint(Sketcher.Constraint("PointOnObject", 0, 2, -2))
sketch6.addConstraint(Sketcher.Constraint("DistanceX", 3, 1, 3, 2, 2100.0))
sketch6.addConstraint(Sketcher.Constraint("DistanceY", 2, 2, 2, 1, 60.0))
sketch6.addConstraint(Sketcher.Constraint("DistanceY", 1, 2, 0, 2, 140.0))
sketch6.addConstraint(Sketcher.Constraint("DistanceY", 0, 2, -1, 1, 114.938241))
sketch6.setExpression("Constraints[10]", "Params.sketch6_width")
sketch6.setExpression("Constraints[11]", "Params.sketch6_height")
pad6 = body.newObject("PartDesign::Pad", "Pad005")
pad6.Profile = sketch6
pad6.setExpression("Length", "Params.pad6_length")

doc.recompute()
